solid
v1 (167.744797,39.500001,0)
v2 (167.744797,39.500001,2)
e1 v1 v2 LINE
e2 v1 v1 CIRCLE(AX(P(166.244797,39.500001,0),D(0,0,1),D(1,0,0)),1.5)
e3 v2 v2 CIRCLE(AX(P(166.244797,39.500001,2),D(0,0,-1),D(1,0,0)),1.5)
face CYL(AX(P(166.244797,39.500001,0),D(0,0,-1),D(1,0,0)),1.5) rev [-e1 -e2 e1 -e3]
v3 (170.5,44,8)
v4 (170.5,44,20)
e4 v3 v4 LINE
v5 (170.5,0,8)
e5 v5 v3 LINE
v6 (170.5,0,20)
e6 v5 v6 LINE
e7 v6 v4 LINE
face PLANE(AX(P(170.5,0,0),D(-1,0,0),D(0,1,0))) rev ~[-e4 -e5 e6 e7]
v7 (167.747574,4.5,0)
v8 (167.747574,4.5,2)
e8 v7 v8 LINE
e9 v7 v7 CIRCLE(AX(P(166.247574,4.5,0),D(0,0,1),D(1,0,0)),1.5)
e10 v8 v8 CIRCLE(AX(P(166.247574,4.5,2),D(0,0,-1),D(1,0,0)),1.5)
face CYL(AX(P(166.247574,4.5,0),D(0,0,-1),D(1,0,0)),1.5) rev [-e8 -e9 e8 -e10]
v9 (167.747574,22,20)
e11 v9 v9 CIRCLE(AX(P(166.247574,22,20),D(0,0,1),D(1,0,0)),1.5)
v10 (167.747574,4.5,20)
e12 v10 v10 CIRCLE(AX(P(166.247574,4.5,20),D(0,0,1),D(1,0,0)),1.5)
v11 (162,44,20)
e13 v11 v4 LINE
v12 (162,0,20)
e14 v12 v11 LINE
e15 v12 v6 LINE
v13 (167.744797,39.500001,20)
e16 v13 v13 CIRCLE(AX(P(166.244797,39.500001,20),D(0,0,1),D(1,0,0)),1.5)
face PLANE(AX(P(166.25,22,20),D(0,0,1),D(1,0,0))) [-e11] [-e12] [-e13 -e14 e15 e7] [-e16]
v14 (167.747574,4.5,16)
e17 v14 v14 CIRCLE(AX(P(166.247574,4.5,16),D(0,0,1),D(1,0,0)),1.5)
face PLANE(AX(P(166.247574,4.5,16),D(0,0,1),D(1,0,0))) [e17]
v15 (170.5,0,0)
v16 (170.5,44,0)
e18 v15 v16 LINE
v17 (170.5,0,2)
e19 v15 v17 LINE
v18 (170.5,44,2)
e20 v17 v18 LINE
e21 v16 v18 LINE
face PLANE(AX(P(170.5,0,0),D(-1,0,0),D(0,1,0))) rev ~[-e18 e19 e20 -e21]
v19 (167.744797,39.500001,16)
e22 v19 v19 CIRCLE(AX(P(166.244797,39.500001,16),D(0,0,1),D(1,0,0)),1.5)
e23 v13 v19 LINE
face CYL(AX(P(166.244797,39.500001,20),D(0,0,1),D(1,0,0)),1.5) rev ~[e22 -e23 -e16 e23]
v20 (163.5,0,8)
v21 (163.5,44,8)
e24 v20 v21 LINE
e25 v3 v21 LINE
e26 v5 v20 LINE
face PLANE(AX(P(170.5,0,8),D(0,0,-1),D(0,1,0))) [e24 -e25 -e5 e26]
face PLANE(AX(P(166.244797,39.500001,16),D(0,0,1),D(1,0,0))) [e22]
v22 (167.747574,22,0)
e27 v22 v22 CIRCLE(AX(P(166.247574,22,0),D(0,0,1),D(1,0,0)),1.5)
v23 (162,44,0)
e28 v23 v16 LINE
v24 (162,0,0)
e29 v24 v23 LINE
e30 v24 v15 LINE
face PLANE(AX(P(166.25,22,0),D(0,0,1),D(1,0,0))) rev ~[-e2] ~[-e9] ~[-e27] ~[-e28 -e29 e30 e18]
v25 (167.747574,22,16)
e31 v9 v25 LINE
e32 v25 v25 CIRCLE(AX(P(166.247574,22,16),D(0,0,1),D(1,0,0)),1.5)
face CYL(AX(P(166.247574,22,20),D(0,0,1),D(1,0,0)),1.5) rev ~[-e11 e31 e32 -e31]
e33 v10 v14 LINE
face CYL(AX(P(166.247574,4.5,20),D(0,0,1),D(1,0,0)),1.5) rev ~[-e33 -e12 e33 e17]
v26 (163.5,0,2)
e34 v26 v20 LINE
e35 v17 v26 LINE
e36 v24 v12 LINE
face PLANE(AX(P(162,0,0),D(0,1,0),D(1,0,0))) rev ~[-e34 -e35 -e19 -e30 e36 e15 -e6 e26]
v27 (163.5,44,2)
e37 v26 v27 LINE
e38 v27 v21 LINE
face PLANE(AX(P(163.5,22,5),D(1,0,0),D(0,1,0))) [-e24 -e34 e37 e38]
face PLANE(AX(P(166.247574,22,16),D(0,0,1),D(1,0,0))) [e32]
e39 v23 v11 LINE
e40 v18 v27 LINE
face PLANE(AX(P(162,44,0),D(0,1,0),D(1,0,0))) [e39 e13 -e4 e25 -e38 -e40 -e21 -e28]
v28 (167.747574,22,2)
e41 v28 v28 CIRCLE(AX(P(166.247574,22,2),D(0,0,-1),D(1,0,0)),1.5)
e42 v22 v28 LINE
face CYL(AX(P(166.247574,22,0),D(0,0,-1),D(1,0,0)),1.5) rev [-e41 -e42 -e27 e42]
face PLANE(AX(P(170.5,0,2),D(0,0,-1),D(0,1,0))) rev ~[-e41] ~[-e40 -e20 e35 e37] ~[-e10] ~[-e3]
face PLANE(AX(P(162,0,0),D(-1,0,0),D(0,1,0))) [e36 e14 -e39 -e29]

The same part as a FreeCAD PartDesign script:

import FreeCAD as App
import Part
import Sketcher

V = App.Vector
Q = App.Units.Quantity


def edges_at(feature, points):
    """Names of the edges that pass closest to the given points."""
    edges = feature.Shape.Edges
    near = lambda p: min(range(len(edges)), key=lambda i: edges[i].distToShape(Part.Vertex(*p))[0])
    return sorted({f"Edge{near(p) + 1}" for p in points})

doc = App.newDocument("Part")
params = doc.addObject("Spreadsheet::Sheet", "Params")
for row, (alias, value) in enumerate([
    ("sketch1_width", "11 mm"),
    ("sketch1_height", "6 mm"),
    ("pad1_length", "7 mm"),
    ("fillet_radius", "1 mm"),
    ("sketch2_height", "44 mm"),
    ("sketch2_width", "8.5 mm"),
    ("pad2_length", "20 mm"),
    ("sketch3_diameter", "3 mm"),
    ("pocket1_length", "4 mm"),
    ("sketch4_diameter", "3 mm"),
    ("pocket2_length", "4 mm"),
    ("sketch5_width", "44 mm"),
    ("sketch5_height", "6 mm"),
    ("pocket3_length", "7 mm"),
], start=1):
    params.set(f"A{row}", alias)
    params.set(f"B{row}", "=" + value)
    params.setAlias(f"B{row}", alias)

body = doc.addObject("PartDesign::Body", "Body")
body.AllowCompound = True

# Sketch on YZ plane
sketch1 = body.newObject("Sketcher::SketchObject", "Sketch")
sketch1.AttachmentSupport = (doc.getObject("YZ_Plane"), [""])
sketch1.MapMode = "FlatFace"
sketch1.AttachmentOffset = App.Placement(V(0, 0, 163.5), App.Rotation())
sketch1.addGeometry(Part.LineSegment(V(25, 8, 0), V(25, 2, 0)), False)
sketch1.addGeometry(Part.LineSegment(V(25, 2, 0), V(36, 2, 0)), False)
sketch1.addGeometry(Part.LineSegment(V(36, 2, 0), V(36, 8, 0)), False)
sketch1.addGeometry(Part.LineSegment(V(36, 8, 0), V(25, 8, 0)), False)
sketch1.addGeometry(Part.LineSegment(V(8, 8, 0), V(8, 2, 0)), False)
sketch1.addGeometry(Part.LineSegment(V(8, 2, 0), V(19, 2, 0)), False)
sketch1.addGeometry(Part.LineSegment(V(19, 2, 0), V(19, 8, 0)), False)
sketch1.addGeometry(Part.LineSegment(V(19, 8, 0), V(8, 8, 0)), False)
sketch1.addConstraint(Sketcher.Constraint("Coincident", 0, 2, 1, 1))
sketch1.addConstraint(Sketcher.Constraint("Coincident", 1, 2, 2, 1))
sketch1.addConstraint(Sketcher.Constraint("Coincident", 2, 2, 3, 1))
sketch1.addConstraint(Sketcher.Constraint("Coincident", 3, 2, 0, 1))
sketch1.addConstraint(Sketcher.Constraint("Coincident", 4, 2, 5, 1))
sketch1.addConstraint(Sketcher.Constraint("Coincident", 5, 2, 6, 1))
sketch1.addConstraint(Sketcher.Constraint("Coincident", 6, 2, 7, 1))
sketch1.addConstraint(Sketcher.Constraint("Coincident", 7, 2, 4, 1))
sketch1.addConstraint(Sketcher.Constraint("Vertical", 0))
sketch1.addConstraint(Sketcher.Constraint("Horizontal", 1))
sketch1.addConstraint(Sketcher.Constraint("Vertical", 2))
sketch1.addConstraint(Sketcher.Constraint("Horizontal", 3))
sketch1.addConstraint(Sketcher.Constraint("Vertical", 4))
sketch1.addConstraint(Sketcher.Constraint("Horizontal", 5))
sketch1.addConstraint(Sketcher.Constraint("Vertical", 6))
sketch1.addConstraint(Sketcher.Constraint("Horizontal", 7))
sketch1.addConstraint(Sketcher.Constraint("Horizontal", 1, 2, 4, 2))
sketch1.addConstraint(Sketcher.Constraint("Horizontal", 3, 2, 6, 2))
sketch1.addConstraint(Sketcher.Constraint("Equal", 3, 5))
sketch1.addConstraint(Sketcher.Constraint("DistanceX", 1, 1, 1, 2, Q("11 mm")))
sketch1.addConstraint(Sketcher.Constraint("DistanceY", 0, 2, 0, 1, Q("6 mm")))
sketch1.addConstraint(Sketcher.Constraint("DistanceX", -1, 1, 0, 2, Q("25 mm")))
sketch1.addConstraint(Sketcher.Constraint("DistanceY", -1, 1, 0, 2, Q("2 mm")))
sketch1.addConstraint(Sketcher.Constraint("DistanceX", -1, 1, 4, 2, Q("8 mm")))
sketch1.setExpression("Constraints[19]", "Params.sketch1_width")
sketch1.setExpression("Constraints[20]", "Params.sketch1_height")
pad1 = body.newObject("PartDesign::Pad", "Pad")
pad1.Profile = sketch1
pad1.setExpression("Length", "Params.pad1_length")
doc.recompute()

fillet = body.newObject("PartDesign::Fillet", "Fillet")
fillet.Base = (pad1, edges_at(pad1, [
    (170.5, 8, 5),
    (170.5, 19, 5),
    (170.5, 36, 5),
    (170.5, 25, 5),
]))
fillet.setExpression("Radius", "Params.fillet_radius")

# Sketch on XY plane
sketch2 = body.newObject("Sketcher::SketchObject", "Sketch001")
sketch2.AttachmentSupport = (doc.getObject("XY_Plane"), [""])
sketch2.MapMode = "FlatFace"
sketch2.addGeometry(Part.LineSegment(V(162, 44, 0), V(162, 0, 0)), False)
sketch2.addGeometry(Part.LineSegment(V(162, 0, 0), V(170, 0, 0)), False)
sketch2.addGeometry(Part.LineSegment(V(170, 0, 0), V(170, 44, 0)), False)
sketch2.addGeometry(Part.LineSegment(V(170, 44, 0), V(162, 44, 0)), False)
sketch2.addConstraint(Sketcher.Constraint("Coincident", 0, 2, 1, 1))
sketch2.addConstraint(Sketcher.Constraint("Coincident", 1, 2, 2, 1))
sketch2.addConstraint(Sketcher.Constraint("Coincident", 2, 2, 3, 1))
sketch2.addConstraint(Sketcher.Constraint("Coincident", 3, 2, 0, 1))
sketch2.addConstraint(Sketcher.Constraint("Vertical", 0))
sketch2.addConstraint(Sketcher.Constraint("Horizontal", 1))
sketch2.addConstraint(Sketcher.Constraint("Vertical", 2))
sketch2.addConstraint(Sketcher.Constraint("Horizontal", 3))
sketch2.addConstraint(Sketcher.Constraint("PointOnObject", 0, 2, -1))
sketch2.addConstraint(Sketcher.Constraint("DistanceY", 0, 2, 0, 1, Q("44 mm")))
sketch2.addConstraint(Sketcher.Constraint("DistanceX", 1, 1, 1, 2, Q("8.5 mm")))
sketch2.addConstraint(Sketcher.Constraint("DistanceX", -1, 1, 0, 2, Q("162 mm")))
sketch2.setExpression("Constraints[9]", "Params.sketch2_height")
sketch2.setExpression("Constraints[10]", "Params.sketch2_width")
pad2 = body.newObject("PartDesign::Pad", "Pad001")
pad2.Profile = sketch2
pad2.setExpression("Length", "Params.pad2_length")

# Sketch on XY plane
sketch3 = body.newObject("Sketcher::SketchObject", "Sketch002")
sketch3.AttachmentSupport = (doc.getObject("XY_Plane"), [""])
sketch3.MapMode = "FlatFace"
sketch3.addGeometry(Part.Circle(V(166.2, 39.5, 0), V(0, 0, 1), 1.5), False)
sketch3.addGeometry(Part.Circle(V(166.2, 22, 0), V(0, 0, 1), 1.5), False)
sketch3.addGeometry(Part.Circle(V(166.2, 4.5, 0), V(0, 0, 1), 1.5), False)
sketch3.addConstraint(Sketcher.Constraint("Equal", 0, 1))
sketch3.addConstraint(Sketcher.Constraint("Equal", 1, 2))
sketch3.addConstraint(Sketcher.Constraint("Vertical", 1, 3, 2, 3))
sketch3.addConstraint(Sketcher.Constraint("Diameter", 0, Q("3 mm")))
sketch3.addConstraint(Sketcher.Constraint("DistanceY", -1, 1, 1, 3, Q("22 mm")))
sketch3.addConstraint(Sketcher.Constraint("DistanceY", 2, 3, 0, 3, Q("35.000001 mm")))
sketch3.addConstraint(Sketcher.Constraint("DistanceY", -1, 1, 0, 3, Q("39.500001 mm")))
sketch3.addConstraint(Sketcher.Constraint("DistanceX", -1, 1, 0, 3, Q("166.244797 mm")))
sketch3.addConstraint(Sketcher.Constraint("DistanceX", -1, 1, 1, 3, Q("166.247574 mm")))
sketch3.setExpression("Constraints[3]", "Params.sketch3_diameter")
pocket1 = body.newObject("PartDesign::Pocket", "Pocket")
pocket1.Profile = sketch3
pocket1.setExpression("Length", "Params.pocket1_length")
pocket1.Reversed = True

# Sketch on XY plane
sketch4 = body.newObject("Sketcher::SketchObject", "Sketch003")
sketch4.AttachmentSupport = (doc.getObject("XY_Plane"), [""])
sketch4.MapMode = "FlatFace"
sketch4.AttachmentOffset = App.Placement(V(0, 0, 20), App.Rotation())
sketch4.addGeometry(Part.Circle(V(166.2, 39.5, 0), V(0, 0, 1), 1.5), False)
sketch4.addGeometry(Part.Circle(V(166.2, 22, 0), V(0, 0, 1), 1.5), False)
sketch4.addGeometry(Part.Circle(V(166.2, 4.5, 0), V(0, 0, 1), 1.5), False)
sketch4.addConstraint(Sketcher.Constraint("Equal", 0, 1))
sketch4.addConstraint(Sketcher.Constraint("Equal", 1, 2))
sketch4.addConstraint(Sketcher.Constraint("Vertical", 1, 3, 2, 3))
sketch4.addConstraint(Sketcher.Constraint("Diameter", 0, Q("3 mm")))
sketch4.addConstraint(Sketcher.Constraint("DistanceY", -1, 1, 1, 3, Q("22 mm")))
sketch4.addConstraint(Sketcher.Constraint("DistanceY", 2, 3, 0, 3, Q("35.000001 mm")))
sketch4.addConstraint(Sketcher.Constraint("DistanceY", -1, 1, 0, 3, Q("39.500001 mm")))
sketch4.addConstraint(Sketcher.Constraint("DistanceX", -1, 1, 0, 3, Q("166.244797 mm")))
sketch4.addConstraint(Sketcher.Constraint("DistanceX", -1, 1, 1, 3, Q("166.247574 mm")))
sketch4.setExpression("Constraints[3]", "Params.sketch4_diameter")
pocket2 = body.newObject("PartDesign::Pocket", "Pocket001")
pocket2.Profile = sketch4
pocket2.setExpression("Length", "Params.pocket2_length")

# Sketch on YZ plane
sketch5 = body.newObject("Sketcher::SketchObject", "Sketch004")
sketch5.AttachmentSupport = (doc.getObject("YZ_Plane"), [""])
sketch5.MapMode = "FlatFace"
sketch5.AttachmentOffset = App.Placement(V(0, 0, 170.5), App.Rotation())
sketch5.addGeometry(Part.LineSegment(V(0, 8, 0), V(0, 2, 0)), False)
sketch5.addGeometry(Part.LineSegment(V(0, 2, 0), V(44, 2, 0)), False)
sketch5.addGeometry(Part.LineSegment(V(44, 2, 0), V(44, 8, 0)), False)
sketch5.addGeometry(Part.LineSegment(V(44, 8, 0), V(0, 8, 0)), False)
sketch5.addConstraint(Sketcher.Constraint("Coincident", 0, 2, 1, 1))
sketch5.addConstraint(Sketcher.Constraint("Coincident", 1, 2, 2, 1))
sketch5.addConstraint(Sketcher.Constraint("Coincident", 2, 2, 3, 1))
sketch5.addConstraint(Sketcher.Constraint("Coincident", 3, 2, 0, 1))
sketch5.addConstraint(Sketcher.Constraint("Vertical", 0))
sketch5.addConstraint(Sketcher.Constraint("Horizontal", 1))
sketch5.addConstraint(Sketcher.Constraint("Vertical", 2))
sketch5.addConstraint(Sketcher.Constraint("Horizontal", 3))
sketch5.addConstraint(Sketcher.Constraint("PointOnObject", 0, 2, -2))
sketch5.addConstraint(Sketcher.Constraint("DistanceX", 1, 1, 1, 2, Q("44 mm")))
sketch5.addConstraint(Sketcher.Constraint("DistanceY", 0, 2, 0, 1, Q("6 mm")))
sketch5.addConstraint(Sketcher.Constraint("DistanceY", -1, 1, 0, 2, Q("2 mm")))
sketch5.setExpression("Constraints[9]", "Params.sketch5_width")
sketch5.setExpression("Constraints[10]", "Params.sketch5_height")
pocket3 = body.newObject("PartDesign::Pocket", "Pocket002")
pocket3.Profile = sketch5
pocket3.setExpression("Length", "Params.pocket3_length")

doc.recompute()
